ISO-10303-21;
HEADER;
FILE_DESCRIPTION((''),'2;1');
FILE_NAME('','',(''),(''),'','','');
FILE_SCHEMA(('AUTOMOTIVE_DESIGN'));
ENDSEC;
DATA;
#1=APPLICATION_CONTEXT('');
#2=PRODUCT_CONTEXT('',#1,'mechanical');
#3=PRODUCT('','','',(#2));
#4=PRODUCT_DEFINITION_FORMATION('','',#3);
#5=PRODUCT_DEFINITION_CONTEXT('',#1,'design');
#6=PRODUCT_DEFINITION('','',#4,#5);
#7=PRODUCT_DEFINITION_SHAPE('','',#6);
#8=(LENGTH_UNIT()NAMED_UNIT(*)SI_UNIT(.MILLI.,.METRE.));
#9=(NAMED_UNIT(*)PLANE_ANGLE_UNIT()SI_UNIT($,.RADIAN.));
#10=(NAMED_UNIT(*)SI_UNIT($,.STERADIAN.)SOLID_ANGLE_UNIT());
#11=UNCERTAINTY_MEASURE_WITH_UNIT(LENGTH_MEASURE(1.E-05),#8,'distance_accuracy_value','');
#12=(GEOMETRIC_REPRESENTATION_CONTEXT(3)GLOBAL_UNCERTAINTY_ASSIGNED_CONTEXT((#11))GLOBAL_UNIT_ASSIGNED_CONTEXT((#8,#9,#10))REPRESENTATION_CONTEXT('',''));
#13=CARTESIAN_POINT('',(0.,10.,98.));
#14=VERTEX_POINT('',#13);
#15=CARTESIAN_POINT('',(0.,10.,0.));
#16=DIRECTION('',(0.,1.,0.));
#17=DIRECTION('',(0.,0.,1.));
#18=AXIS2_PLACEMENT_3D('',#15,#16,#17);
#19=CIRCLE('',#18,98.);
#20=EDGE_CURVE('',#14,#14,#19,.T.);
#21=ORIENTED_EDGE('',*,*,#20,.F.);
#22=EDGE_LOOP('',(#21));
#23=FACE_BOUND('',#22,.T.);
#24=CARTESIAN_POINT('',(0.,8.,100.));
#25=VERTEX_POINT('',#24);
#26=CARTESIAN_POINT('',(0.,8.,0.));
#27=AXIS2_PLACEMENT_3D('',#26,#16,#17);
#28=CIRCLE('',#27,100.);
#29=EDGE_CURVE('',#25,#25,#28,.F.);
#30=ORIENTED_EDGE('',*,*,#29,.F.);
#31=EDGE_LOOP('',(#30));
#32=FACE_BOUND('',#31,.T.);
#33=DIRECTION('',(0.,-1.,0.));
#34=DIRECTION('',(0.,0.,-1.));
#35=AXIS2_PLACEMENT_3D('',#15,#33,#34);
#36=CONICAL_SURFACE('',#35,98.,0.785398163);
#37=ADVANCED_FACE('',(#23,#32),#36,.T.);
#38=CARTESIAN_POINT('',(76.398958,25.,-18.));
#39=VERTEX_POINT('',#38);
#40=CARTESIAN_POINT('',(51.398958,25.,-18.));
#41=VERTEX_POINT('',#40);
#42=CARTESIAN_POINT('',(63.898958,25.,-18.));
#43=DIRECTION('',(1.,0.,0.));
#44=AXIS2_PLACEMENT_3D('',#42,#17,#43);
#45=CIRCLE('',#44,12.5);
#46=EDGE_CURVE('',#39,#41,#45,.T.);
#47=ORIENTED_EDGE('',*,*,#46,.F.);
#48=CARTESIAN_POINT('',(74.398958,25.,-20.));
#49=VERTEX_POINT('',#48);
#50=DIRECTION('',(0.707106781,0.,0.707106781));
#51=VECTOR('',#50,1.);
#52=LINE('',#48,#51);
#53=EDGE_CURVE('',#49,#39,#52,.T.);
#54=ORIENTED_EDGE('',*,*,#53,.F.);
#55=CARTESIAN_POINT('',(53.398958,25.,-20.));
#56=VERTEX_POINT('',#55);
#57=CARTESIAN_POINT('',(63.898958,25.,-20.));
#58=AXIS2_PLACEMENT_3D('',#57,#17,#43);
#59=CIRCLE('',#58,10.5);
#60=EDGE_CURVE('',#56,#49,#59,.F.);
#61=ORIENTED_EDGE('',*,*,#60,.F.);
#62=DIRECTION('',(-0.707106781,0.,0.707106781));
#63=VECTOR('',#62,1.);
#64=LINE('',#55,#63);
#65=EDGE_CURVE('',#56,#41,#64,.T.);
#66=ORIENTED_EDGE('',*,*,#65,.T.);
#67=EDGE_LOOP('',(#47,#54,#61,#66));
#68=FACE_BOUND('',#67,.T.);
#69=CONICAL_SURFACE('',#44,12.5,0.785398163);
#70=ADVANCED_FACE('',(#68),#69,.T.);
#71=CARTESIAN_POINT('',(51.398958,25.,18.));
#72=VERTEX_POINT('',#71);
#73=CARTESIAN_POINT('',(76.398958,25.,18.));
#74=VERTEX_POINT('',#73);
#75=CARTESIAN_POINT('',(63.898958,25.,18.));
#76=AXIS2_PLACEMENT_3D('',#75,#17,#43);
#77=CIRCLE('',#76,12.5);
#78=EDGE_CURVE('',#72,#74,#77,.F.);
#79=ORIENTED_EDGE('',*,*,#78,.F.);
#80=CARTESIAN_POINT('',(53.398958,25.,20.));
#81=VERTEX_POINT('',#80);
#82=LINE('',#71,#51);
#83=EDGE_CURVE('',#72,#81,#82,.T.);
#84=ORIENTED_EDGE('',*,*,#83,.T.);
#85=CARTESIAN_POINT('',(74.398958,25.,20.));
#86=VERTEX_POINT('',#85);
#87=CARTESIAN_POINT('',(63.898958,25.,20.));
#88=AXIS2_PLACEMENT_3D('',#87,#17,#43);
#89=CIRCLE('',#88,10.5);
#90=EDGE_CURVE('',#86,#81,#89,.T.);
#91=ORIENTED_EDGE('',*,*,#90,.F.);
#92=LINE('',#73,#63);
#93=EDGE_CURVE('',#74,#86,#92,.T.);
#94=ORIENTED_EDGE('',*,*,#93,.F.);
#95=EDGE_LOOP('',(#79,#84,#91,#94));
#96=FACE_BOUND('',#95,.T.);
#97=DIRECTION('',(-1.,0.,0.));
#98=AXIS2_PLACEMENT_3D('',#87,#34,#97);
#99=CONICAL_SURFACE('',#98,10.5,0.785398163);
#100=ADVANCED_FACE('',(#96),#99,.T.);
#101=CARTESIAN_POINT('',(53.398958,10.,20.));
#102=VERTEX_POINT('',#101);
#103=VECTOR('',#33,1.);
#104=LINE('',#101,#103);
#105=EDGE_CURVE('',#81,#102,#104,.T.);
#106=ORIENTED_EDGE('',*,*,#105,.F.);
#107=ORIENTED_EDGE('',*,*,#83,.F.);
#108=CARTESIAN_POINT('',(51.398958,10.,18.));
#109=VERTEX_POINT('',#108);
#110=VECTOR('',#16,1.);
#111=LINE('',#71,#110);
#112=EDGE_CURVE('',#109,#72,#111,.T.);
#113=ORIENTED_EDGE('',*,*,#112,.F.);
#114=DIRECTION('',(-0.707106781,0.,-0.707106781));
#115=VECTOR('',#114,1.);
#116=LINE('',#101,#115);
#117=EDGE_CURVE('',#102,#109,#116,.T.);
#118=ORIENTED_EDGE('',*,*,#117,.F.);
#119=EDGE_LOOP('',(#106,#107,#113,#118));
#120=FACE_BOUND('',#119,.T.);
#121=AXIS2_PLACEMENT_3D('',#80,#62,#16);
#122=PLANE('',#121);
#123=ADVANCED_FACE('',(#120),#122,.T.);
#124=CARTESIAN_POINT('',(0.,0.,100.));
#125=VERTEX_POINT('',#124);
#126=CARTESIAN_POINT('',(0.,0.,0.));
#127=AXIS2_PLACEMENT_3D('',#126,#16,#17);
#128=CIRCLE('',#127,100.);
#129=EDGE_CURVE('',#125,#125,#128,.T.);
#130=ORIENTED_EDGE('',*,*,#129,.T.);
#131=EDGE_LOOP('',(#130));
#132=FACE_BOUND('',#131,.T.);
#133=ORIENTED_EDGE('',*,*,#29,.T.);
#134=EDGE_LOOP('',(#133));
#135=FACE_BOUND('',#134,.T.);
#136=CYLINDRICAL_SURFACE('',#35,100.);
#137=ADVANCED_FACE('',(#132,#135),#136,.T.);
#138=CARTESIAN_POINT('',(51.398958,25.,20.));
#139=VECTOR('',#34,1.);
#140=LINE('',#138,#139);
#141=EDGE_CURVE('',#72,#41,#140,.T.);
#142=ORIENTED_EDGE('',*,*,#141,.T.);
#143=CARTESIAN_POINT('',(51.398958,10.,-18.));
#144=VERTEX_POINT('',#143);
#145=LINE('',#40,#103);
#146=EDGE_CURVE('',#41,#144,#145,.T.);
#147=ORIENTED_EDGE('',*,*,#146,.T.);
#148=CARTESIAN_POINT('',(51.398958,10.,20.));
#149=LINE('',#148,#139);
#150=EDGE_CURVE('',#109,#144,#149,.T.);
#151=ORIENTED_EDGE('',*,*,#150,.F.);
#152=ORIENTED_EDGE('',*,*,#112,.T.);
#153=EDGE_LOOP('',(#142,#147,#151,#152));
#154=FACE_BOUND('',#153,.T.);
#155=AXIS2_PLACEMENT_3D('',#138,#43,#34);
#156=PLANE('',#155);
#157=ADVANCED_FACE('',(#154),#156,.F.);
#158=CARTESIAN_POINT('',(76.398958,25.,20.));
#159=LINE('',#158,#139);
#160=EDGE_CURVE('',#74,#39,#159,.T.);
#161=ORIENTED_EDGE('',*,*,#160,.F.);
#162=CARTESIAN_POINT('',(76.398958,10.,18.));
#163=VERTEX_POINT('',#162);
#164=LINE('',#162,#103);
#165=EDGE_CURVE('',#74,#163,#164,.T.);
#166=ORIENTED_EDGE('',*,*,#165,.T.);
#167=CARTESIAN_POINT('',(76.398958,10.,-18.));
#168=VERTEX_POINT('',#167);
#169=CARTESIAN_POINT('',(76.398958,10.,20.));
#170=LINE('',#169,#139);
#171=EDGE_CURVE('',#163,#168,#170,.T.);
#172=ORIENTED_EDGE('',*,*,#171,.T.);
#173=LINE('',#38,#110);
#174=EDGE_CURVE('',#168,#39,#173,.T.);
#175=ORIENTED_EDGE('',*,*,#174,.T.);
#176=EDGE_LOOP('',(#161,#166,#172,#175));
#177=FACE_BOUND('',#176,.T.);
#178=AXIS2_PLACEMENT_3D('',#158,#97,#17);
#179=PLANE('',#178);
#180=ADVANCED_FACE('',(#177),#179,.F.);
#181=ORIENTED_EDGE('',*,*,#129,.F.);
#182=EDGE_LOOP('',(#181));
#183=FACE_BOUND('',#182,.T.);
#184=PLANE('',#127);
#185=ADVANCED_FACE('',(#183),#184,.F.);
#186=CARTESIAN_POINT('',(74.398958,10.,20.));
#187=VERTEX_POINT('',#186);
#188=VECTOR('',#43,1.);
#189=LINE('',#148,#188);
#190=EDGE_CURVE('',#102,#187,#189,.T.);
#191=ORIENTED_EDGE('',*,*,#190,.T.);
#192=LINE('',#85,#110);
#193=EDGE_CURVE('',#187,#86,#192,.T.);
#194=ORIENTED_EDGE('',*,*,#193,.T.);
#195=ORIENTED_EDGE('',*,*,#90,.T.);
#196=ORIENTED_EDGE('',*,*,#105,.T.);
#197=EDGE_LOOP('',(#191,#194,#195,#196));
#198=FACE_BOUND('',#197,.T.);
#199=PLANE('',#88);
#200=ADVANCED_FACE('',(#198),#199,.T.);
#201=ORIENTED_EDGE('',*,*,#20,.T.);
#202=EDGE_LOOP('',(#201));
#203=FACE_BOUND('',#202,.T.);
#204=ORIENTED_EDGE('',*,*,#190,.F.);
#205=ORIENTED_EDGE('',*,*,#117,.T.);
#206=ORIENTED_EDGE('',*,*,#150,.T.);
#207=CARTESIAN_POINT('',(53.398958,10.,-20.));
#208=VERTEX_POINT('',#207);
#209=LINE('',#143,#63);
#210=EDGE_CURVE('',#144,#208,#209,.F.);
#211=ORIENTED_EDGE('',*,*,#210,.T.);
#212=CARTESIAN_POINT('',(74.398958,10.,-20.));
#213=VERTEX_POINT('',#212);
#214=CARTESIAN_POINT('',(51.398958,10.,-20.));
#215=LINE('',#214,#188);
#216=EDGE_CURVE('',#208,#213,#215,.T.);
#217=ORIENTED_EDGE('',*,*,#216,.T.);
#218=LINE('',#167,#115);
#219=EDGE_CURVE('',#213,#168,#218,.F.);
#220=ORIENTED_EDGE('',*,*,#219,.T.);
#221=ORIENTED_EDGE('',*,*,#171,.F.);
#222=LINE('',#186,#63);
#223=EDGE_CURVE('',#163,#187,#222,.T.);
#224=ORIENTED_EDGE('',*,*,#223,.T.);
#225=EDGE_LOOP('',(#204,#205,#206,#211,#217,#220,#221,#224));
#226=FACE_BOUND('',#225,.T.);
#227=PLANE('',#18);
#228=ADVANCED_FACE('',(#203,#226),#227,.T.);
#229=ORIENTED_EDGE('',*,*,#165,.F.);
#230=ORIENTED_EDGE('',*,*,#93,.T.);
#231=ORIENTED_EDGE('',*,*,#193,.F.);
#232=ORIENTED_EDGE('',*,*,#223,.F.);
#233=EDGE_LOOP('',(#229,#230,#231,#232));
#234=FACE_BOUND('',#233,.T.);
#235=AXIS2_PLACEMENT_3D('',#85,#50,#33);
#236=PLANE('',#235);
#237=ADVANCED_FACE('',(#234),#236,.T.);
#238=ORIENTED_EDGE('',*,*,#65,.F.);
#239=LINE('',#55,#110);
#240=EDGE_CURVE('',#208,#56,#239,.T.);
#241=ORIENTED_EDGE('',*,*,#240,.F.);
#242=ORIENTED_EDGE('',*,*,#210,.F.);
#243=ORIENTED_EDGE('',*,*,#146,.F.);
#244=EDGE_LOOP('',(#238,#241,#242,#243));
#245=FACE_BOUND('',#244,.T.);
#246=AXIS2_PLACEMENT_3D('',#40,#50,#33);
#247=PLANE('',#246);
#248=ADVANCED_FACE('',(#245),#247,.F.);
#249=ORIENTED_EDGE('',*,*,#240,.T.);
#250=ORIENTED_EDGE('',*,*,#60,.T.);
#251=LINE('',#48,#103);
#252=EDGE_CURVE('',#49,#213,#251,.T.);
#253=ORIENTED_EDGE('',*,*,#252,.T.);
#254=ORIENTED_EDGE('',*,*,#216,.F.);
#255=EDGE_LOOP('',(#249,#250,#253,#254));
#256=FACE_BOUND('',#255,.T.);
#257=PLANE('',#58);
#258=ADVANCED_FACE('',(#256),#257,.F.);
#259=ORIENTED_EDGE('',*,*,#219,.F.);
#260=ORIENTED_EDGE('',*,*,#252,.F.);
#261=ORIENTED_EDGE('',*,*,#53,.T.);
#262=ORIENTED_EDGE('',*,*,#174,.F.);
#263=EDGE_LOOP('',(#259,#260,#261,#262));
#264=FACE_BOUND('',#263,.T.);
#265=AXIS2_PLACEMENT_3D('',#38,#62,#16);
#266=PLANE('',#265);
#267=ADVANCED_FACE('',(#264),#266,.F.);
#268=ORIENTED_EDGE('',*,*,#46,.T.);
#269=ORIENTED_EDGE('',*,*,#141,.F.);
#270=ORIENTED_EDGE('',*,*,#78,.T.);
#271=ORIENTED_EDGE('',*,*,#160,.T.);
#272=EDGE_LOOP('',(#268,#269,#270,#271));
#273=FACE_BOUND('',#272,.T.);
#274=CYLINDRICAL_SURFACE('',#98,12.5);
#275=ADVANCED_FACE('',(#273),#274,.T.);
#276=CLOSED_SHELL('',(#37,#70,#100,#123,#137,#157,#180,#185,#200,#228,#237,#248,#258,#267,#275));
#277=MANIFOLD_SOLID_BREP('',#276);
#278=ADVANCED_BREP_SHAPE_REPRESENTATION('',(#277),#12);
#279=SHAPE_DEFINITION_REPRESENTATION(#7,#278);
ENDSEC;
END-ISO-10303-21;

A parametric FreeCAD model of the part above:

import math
import FreeCAD as App
import Part
import Sketcher
from FreeCAD import Vector
Q = App.Units.Quantity


def edges_at(feature, points):
    """Names of the edges that pass closest to the given points."""
    edges = feature.Shape.Edges
    near = lambda p: min(range(len(edges)), key=lambda i: edges[i].distToShape(Part.Vertex(*p))[0])
    return sorted({f"Edge{near(p) + 1}" for p in points})

doc = App.newDocument("Part")
body = doc.addObject("PartDesign::Body", "Body")

# Sketch on XZ plane
sketch1 = body.newObject("Sketcher::SketchObject", "Sketch")
sketch1.AttachmentSupport = (doc.getObject("XZ_Plane"), [""])
sketch1.MapMode = "FlatFace"
sketch1.addGeometry(Part.Circle(Vector(0, 0, 0), Vector(0, 0, 1), 100), False)
sketch1.addConstraint(Sketcher.Constraint("Coincident", 0, 3, -1, 1))
sketch1.addConstraint(Sketcher.Constraint("Diameter", 0, Q("200 mm")))
pad1 = body.newObject("PartDesign::Pad", "Pad")
pad1.Profile = sketch1
pad1.Length = 10
pad1.Reversed = True

# Sketch on XY plane
sketch2 = body.newObject("Sketcher::SketchObject", "Sketch001")
sketch2.AttachmentSupport = (doc.getObject("XY_Plane"), [""])
sketch2.MapMode = "FlatFace"
sketch2.addGeometry(Part.LineSegment(Vector(51.398958, 25, 0), Vector(51.398958, 10, 0)), False)
sketch2.addGeometry(Part.LineSegment(Vector(51.398958, 10, 0), Vector(76.398958, 10, 0)), False)
sketch2.addGeometry(Part.LineSegment(Vector(76.398958, 10, 0), Vector(76.398958, 25, 0)), False)
sketch2.addGeometry(Part.ArcOfCircle(Part.Circle(Vector(63.898958, 25, 0), Vector(0, 0, 1), 12.5), math.radians(0), math.radians(180)), False)
sketch2.addConstraint(Sketcher.Constraint("Coincident", 0, 2, 1, 1))
sketch2.addConstraint(Sketcher.Constraint("Coincident", 1, 2, 2, 1))
sketch2.addConstraint(Sketcher.Constraint("Tangent", 2, 2, 3, 1))
sketch2.addConstraint(Sketcher.Constraint("Tangent", 3, 2, 0, 1))
sketch2.addConstraint(Sketcher.Constraint("Vertical", 0))
sketch2.addConstraint(Sketcher.Constraint("Horizontal", 1))
sketch2.addConstraint(Sketcher.Constraint("Vertical", 2))
sketch2.addConstraint(Sketcher.Constraint("Radius", 3, Q("12.5 mm")))
sketch2.addConstraint(Sketcher.Constraint("DistanceY", 0, 2, 0, 1, Q("15 mm")))
sketch2.addConstraint(Sketcher.Constraint("DistanceY", -1, 1, 3, 3, Q("25 mm")))
sketch2.addConstraint(Sketcher.Constraint("DistanceX", -1, 1, 3, 3, Q("63.898958 mm")))
pad2 = body.newObject("PartDesign::Pad", "Pad001")
pad2.Profile = sketch2
pad2.Length = 40
pad2.Midplane = True
doc.recompute()

chamfer = body.newObject("PartDesign::Chamfer", "Chamfer")
chamfer.Base = (pad2, edges_at(pad2, [
    (51.399, 17.5, 20),
    (76.399, 17.5, 20),
    (63.899, 37.5, -20),
    (51.399, 17.5, -20),
    (76.399, 17.5, -20),
    (63.899, 37.5, 20),
]))
chamfer.Size = 2
doc.recompute()

chamfer2 = body.newObject("PartDesign::Chamfer", "Chamfer001")
chamfer2.Base = (chamfer, edges_at(chamfer, [(0, 10, -100)]))
chamfer2.Size = 2

doc.recompute()
